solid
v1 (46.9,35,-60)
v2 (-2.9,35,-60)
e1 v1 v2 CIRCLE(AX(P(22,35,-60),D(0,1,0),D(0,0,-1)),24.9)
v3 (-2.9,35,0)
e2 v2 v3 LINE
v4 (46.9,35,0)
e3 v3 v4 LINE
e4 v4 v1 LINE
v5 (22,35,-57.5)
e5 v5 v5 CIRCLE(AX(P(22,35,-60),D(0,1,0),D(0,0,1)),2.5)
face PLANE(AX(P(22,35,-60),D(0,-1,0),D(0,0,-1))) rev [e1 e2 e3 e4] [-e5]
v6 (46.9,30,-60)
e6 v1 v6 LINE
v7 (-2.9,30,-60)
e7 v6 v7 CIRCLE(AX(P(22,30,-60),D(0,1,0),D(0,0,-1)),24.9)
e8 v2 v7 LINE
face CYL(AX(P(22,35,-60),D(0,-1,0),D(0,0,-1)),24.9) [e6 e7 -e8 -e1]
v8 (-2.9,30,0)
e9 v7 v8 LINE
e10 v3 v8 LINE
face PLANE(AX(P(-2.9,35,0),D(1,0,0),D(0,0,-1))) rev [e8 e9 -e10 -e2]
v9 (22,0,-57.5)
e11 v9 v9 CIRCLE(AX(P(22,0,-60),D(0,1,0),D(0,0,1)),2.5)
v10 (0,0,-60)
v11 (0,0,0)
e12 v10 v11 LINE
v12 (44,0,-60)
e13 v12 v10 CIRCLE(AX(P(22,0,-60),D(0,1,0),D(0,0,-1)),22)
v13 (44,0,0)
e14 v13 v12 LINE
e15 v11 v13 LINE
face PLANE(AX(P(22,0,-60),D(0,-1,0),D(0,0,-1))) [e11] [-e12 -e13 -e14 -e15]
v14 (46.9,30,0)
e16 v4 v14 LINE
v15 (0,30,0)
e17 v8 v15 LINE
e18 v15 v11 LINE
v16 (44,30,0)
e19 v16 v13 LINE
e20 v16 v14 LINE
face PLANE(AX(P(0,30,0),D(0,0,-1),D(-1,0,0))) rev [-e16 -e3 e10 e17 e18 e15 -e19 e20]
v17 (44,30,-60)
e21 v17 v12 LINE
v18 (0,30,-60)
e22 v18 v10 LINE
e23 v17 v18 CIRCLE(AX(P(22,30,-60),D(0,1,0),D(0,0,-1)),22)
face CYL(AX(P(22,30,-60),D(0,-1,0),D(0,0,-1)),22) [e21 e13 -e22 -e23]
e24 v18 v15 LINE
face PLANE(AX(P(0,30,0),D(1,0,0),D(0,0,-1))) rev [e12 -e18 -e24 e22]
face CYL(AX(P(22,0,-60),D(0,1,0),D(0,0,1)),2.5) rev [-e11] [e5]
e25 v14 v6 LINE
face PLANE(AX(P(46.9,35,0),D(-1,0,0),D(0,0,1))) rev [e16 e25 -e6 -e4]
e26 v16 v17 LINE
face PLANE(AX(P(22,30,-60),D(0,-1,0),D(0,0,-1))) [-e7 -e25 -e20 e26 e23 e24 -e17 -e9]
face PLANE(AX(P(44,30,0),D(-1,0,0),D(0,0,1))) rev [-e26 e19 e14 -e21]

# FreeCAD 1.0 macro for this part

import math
import FreeCAD as App
import Part
import Sketcher

V = App.Vector

doc = App.newDocument("Part")
body = doc.addObject("PartDesign::Body", "Body")

# Sketch on XZ plane
sketch1 = doc.addObject("Sketcher::SketchObject", "Sketch")
body.addObject(sketch1)
sketch1.AttachmentSupport = (doc.XZ_Plane, [""])
sketch1.MapMode = "FlatFace"
sketch1.addGeometry(Part.LineSegment(V(0, 0, 0), V(44, 0, 0)), False)
sketch1.addGeometry(Part.LineSegment(V(44, 0, 0), V(44, -60, 0)), False)
sketch1.addGeometry(Part.ArcOfCircle(Part.Circle(V(22, -60, 0), V(0, 0, 1), 22), math.radians(180), math.radians(360)), False)
sketch1.addGeometry(Part.LineSegment(V(0, -60, 0), V(0, 0, 0)), False)
sketch1.addConstraint(Sketcher.Constraint("Coincident", 0, 2, 1, 1))
sketch1.addConstraint(Sketcher.Constraint("Tangent", 1, 2, 2, 2))
sketch1.addConstraint(Sketcher.Constraint("Tangent", 2, 1, 3, 1))
sketch1.addConstraint(Sketcher.Constraint("Coincident", 3, 2, 0, 1))
sketch1.addConstraint(Sketcher.Constraint("Horizontal", 0))
sketch1.addConstraint(Sketcher.Constraint("Vertical", 1))
sketch1.addConstraint(Sketcher.Constraint("Vertical", 3))
sketch1.addConstraint(Sketcher.Constraint("Coincident", 3, 2, -1, 1))
sketch1.addConstraint(Sketcher.Constraint("Radius", 2, 22.0))
sketch1.addConstraint(Sketcher.Constraint("DistanceY", 1, 2, 1, 1, 60.0))
pad1 = doc.addObject("PartDesign::Pad", "Pad")
body.addObject(pad1)
pad1.Profile = sketch1
pad1.Length = 30
pad1.Reversed = True

# Sketch on XZ plane
sketch2 = doc.addObject("Sketcher::SketchObject", "Sketch001")
body.addObject(sketch2)
sketch2.AttachmentSupport = (doc.XZ_Plane, [""])
sketch2.MapMode = "FlatFace"
sketch2.AttachmentOffset = App.Placement(V(0, 0, -30), App.Rotation())
sketch2.addGeometry(Part.LineSegment(V(-3, 0, 0), V(47, 0, 0)), False)
sketch2.addGeometry(Part.LineSegment(V(47, 0, 0), V(47, -60, 0)), False)
sketch2.addGeometry(Part.ArcOfCircle(Part.Circle(V(22, -60, 0), V(0, 0, 1), 25), math.radians(180), math.radians(360)), False)
sketch2.addGeometry(Part.LineSegment(V(-3, -60, 0), V(-3, 0, 0)), False)
sketch2.addConstraint(Sketcher.Constraint("Coincident", 0, 2, 1, 1))
sketch2.addConstraint(Sketcher.Constraint("Tangent", 1, 2, 2, 2))
sketch2.addConstraint(Sketcher.Constraint("Tangent", 2, 1, 3, 1))
sketch2.addConstraint(Sketcher.Constraint("Coincident", 3, 2, 0, 1))
sketch2.addConstraint(Sketcher.Constraint("Horizontal", 0))
sketch2.addConstraint(Sketcher.Constraint("Vertical", 1))
sketch2.addConstraint(Sketcher.Constraint("Vertical", 3))
sketch2.addConstraint(Sketcher.Constraint("PointOnObject", 0, 2, -1))
sketch2.addConstraint(Sketcher.Constraint("Radius", 2, 24.9))
sketch2.addConstraint(Sketcher.Constraint("DistanceY", 1, 2, 1, 1, 60.0))
sketch2.addConstraint(Sketcher.Constraint("DistanceX", -1, 1, 2, 3, 22.0))
pad2 = doc.addObject("PartDesign::Pad", "Pad001")
body.addObject(pad2)
pad2.Profile = sketch2
pad2.Length = 5
pad2.Reversed = True

# Sketch on XZ plane
sketch3 = doc.addObject("Sketcher::SketchObject", "Sketch002")
body.addObject(sketch3)
sketch3.AttachmentSupport = (doc.XZ_Plane, [""])
sketch3.MapMode = "FlatFace"
sketch3.AttachmentOffset = App.Placement(V(0, 0, -35), App.Rotation())
sketch3.addGeometry(Part.Circle(V(22, -60, 0), V(0, 0, 1), 2.5), False)
sketch3.addConstraint(Sketcher.Constraint("Diameter", 0, 5.0))
sketch3.addConstraint(Sketcher.Constraint("DistanceX", -1, 1, 0, 3, 22.0))
sketch3.addConstraint(Sketcher.Constraint("DistanceY", 0, 3, -1, 1, 60.0))
pocket1 = doc.addObject("PartDesign::Pocket", "Pocket")
body.addObject(pocket1)
pocket1.Profile = sketch3
pocket1.Type = "ThroughAll"
pocket1.Reversed = True

doc.recompute()
